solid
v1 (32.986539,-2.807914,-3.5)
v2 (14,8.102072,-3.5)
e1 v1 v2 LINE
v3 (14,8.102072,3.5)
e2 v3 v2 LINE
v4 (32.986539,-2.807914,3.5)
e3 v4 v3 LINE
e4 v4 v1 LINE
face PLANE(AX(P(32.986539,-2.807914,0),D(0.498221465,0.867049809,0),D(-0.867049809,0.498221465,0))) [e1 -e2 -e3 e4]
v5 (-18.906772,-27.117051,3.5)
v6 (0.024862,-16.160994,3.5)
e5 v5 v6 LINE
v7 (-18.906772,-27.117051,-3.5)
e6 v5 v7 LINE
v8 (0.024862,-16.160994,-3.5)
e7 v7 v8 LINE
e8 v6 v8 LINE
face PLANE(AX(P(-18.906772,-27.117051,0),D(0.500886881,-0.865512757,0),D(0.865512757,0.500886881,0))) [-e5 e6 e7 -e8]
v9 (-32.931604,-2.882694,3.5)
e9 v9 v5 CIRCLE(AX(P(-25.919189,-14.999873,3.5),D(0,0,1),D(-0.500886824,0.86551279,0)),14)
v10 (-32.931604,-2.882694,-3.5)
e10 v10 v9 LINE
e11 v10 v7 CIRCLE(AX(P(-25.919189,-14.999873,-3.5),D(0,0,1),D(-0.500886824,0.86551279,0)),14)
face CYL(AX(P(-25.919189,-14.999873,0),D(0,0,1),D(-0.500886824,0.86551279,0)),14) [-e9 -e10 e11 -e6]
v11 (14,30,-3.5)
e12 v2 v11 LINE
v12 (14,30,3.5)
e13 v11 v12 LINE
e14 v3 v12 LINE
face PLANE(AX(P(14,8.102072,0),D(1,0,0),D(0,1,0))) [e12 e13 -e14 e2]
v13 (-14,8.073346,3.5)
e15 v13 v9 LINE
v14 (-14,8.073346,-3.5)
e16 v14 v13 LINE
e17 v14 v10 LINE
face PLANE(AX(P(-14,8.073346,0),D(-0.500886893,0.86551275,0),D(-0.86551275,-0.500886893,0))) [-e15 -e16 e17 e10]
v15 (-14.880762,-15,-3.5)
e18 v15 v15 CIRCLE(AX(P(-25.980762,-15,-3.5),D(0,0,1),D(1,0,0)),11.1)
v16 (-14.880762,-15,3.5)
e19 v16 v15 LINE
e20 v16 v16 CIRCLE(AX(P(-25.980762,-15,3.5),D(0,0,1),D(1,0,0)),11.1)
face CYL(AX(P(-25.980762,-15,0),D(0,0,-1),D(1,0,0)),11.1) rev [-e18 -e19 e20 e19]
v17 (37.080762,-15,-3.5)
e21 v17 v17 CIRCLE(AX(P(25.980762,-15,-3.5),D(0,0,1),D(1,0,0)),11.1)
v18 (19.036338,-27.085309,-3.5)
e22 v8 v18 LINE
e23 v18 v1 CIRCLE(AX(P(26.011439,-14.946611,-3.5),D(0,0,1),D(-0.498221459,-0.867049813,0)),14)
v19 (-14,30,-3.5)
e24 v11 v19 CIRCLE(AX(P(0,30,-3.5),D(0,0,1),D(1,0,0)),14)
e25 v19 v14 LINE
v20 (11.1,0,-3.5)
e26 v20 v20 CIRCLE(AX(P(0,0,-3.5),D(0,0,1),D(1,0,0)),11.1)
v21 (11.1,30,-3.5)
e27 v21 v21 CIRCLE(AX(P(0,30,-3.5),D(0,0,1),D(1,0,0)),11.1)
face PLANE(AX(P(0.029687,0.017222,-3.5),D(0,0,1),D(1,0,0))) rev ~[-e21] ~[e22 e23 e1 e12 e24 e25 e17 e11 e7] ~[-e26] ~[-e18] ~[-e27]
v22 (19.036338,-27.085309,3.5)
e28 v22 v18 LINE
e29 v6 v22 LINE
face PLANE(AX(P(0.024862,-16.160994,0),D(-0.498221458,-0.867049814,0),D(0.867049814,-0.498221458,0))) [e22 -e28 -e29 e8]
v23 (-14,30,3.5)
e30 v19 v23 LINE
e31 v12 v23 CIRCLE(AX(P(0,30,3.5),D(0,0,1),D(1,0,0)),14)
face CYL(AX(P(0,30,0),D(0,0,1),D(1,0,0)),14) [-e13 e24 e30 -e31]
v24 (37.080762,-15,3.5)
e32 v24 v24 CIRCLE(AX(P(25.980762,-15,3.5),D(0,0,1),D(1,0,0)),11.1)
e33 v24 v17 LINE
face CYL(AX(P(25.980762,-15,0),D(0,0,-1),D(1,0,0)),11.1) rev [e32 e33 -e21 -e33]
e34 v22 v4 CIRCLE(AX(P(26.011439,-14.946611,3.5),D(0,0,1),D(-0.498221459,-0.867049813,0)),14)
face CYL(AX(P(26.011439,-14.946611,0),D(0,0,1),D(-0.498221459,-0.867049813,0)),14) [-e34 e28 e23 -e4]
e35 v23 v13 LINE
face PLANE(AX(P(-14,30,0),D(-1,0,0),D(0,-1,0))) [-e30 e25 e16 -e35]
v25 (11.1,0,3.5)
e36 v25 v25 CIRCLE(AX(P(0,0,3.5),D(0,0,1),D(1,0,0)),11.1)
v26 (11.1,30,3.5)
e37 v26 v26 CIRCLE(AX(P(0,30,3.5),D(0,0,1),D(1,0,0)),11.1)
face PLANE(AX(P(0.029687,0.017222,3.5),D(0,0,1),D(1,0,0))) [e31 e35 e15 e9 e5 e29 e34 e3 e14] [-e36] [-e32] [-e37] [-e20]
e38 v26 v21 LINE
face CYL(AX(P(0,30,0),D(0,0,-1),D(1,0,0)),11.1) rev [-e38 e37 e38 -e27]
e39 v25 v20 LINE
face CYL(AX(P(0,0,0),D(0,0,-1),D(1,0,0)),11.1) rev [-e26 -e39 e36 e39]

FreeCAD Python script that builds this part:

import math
import FreeCAD as App
import Part
import Sketcher
Q = App.Units.Quantity

doc = App.newDocument("Part")
params = doc.addObject("Spreadsheet::Sheet", "Params")
for row, (alias, value) in enumerate([
    ("sketch1_radius", "14 mm"),
    ("sketch1_diameter", "22.2 mm"),
    ("pad1_length", "7 mm"),
], start=1):
    params.set(f"A{row}", alias)
    params.set(f"B{row}", "=" + value)
    params.setAlias(f"B{row}", alias)

body = doc.addObject("PartDesign::Body", "Body")

sketch1 = body.newObject("Sketcher::SketchObject", "Sketch")
sketch1.AttachmentSupport = (doc.getObject("XY_Plane"), [""])
sketch1.MapMode = "FlatFace"
sketch1.addGeometry([
    Part.LineSegment(App.Vector(14, 8, 0), App.Vector(14, 30, 0)),
    Part.ArcOfCircle(Part.Circle(App.Vector(0, 30, 0), App.Vector(0, 0, 1), 14), math.radians(0), math.radians(180)),
    Part.LineSegment(App.Vector(-14, 30, 0), App.Vector(-14, 8, 0)),
    Part.LineSegment(App.Vector(-14, 8, 0), App.Vector(-33, -3, 0)),
    Part.ArcOfCircle(Part.Circle(App.Vector(-26, -15, 0), App.Vector(0, 0, 1), 14), math.radians(120), math.radians(300)),
    Part.LineSegment(App.Vector(-19, -27, 0), App.Vector(0, -16, 0)),
    Part.LineSegment(App.Vector(0, -16, 0), App.Vector(19, -27, 0)),
    Part.ArcOfCircle(Part.Circle(App.Vector(26, -15, 0), App.Vector(0, 0, 1), 14), math.radians(-120), math.radians(60)),
    Part.LineSegment(App.Vector(33, -3, 0), App.Vector(14, 8, 0)),
    Part.Circle(App.Vector(-26, -15, 0), App.Vector(0, 0, 1), 11),
    Part.Circle(App.Vector(26, -15, 0), App.Vector(0, 0, 1), 11),
    Part.Circle(App.Vector(0, 0, 0), App.Vector(0, 0, 1), 11),
    Part.Circle(App.Vector(0, 30, 0), App.Vector(0, 0, 1), 11),
], False)
sketch1.addConstraint([
    Sketcher.Constraint("Tangent", 0, 2, 1, 1),
    Sketcher.Constraint("Tangent", 1, 2, 2, 1),
    Sketcher.Constraint("Coincident", 2, 2, 3, 1),
    Sketcher.Constraint("Tangent", 3, 2, 4, 1),
    Sketcher.Constraint("Tangent", 4, 2, 5, 1),
    Sketcher.Constraint("Coincident", 5, 2, 6, 1),
    Sketcher.Constraint("Tangent", 6, 2, 7, 1),
    Sketcher.Constraint("Tangent", 7, 2, 8, 1),
    Sketcher.Constraint("Coincident", 8, 2, 0, 1),
    Sketcher.Constraint("Vertical", 0),
    Sketcher.Constraint("Vertical", 2),
    Sketcher.Constraint("Coincident", 11, 3, -1, 1),
    Sketcher.Constraint("Coincident", 12, 3, 1, 3),
    Sketcher.Constraint("Equal", 1, 4),
    Sketcher.Constraint("Equal", 4, 7),
    Sketcher.Constraint("Equal", 9, 10),
    Sketcher.Constraint("Equal", 10, 11),
    Sketcher.Constraint("Equal", 11, 12),
    Sketcher.Constraint("Symmetric", 9, 3, 10, 3, -2),
    Sketcher.Constraint("PointOnObject", 1, 3, -2),
    Sketcher.Constraint("Parallel", 3, 5),
    Sketcher.Constraint("Parallel", 6, 8),
    Sketcher.Constraint("Radius", 1, Q("14 mm")),
    Sketcher.Constraint("Diameter", 9, Q("22.2 mm")),
    Sketcher.Constraint("DistanceY", -1, 1, 1, 3, Q("30 mm")),
    Sketcher.Constraint("DistanceY", 9, 3, -1, 1, Q("15 mm")),
    Sketcher.Constraint("DistanceY", 0, 1, 0, 2, Q("21.897928 mm")),
    Sketcher.Constraint("DistanceX", 9, 3, 7, 3, Q("51.9922 mm")),
    Sketcher.Constraint("DistanceX", 5, 2, 10, 3, Q("25.9559 mm")),
    Sketcher.Constraint("DistanceX", 6, 2, 7, 3, Q("6.9751 mm")),
    Sketcher.Constraint("Distance", 3, Q("21.873281 mm")),
    Sketcher.Constraint("DistanceY", 2, 2, 2, 1, Q("21.926654 mm")),
    Sketcher.Constraint("DistanceX", 4, 3, -1, 1, Q("25.919189 mm")),
])
sketch1.setExpression("Constraints[22]", "Params.sketch1_radius")
sketch1.setExpression("Constraints[23]", "Params.sketch1_diameter")
pad1 = body.newObject("PartDesign::Pad", "Pad")
pad1.Profile = sketch1
pad1.setExpression("Length", "Params.pad1_length")
pad1.Midplane = True

doc.recompute()
